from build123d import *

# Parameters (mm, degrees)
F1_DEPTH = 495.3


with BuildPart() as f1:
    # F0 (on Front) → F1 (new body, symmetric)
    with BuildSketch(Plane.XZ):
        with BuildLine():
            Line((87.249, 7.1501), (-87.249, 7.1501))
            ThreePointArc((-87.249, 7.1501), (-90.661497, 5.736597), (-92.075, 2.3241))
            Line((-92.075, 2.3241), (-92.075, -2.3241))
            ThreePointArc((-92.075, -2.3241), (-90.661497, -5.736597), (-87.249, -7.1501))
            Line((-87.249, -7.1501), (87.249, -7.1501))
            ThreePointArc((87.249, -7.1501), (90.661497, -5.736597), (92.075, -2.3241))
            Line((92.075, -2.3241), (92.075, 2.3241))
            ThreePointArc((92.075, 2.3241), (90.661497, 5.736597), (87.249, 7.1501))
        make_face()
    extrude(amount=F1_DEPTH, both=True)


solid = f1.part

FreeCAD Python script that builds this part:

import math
import FreeCAD as App
import Part
import Sketcher

V = App.Vector
Q = App.Units.Quantity

doc = App.newDocument("Part")
body = doc.addObject("PartDesign::Body", "Body")

# Sketch on XZ plane
sketch1 = body.newObject("Sketcher::SketchObject", "Sketch")
sketch1.AttachmentSupport = (doc.getObject("XZ_Plane"), [""])
sketch1.MapMode = "FlatFace"
sketch1.addGeometry([
    Part.LineSegment(V(87.2, 7.2, 0), V(-87.2, 7.2, 0)),  # 0
    Part.ArcOfCircle(Part.Circle(V(-87.2, 2.3, 0), V(0, 0, 1), 4.8), math.radians(90), math.radians(180)),  # 1
    Part.LineSegment(V(-92.1, 2.3, 0), V(-92.1, -2.3, 0)),  # 2
    Part.ArcOfCircle(Part.Circle(V(-87.2, -2.3, 0), V(0, 0, 1), 4.8), math.radians(-180), math.radians(-90)),  # 3
    Part.LineSegment(V(-87.2, -7.2, 0), V(87.2, -7.2, 0)),  # 4
    Part.ArcOfCircle(Part.Circle(V(87.2, -2.3, 0), V(0, 0, 1), 4.8), math.radians(-90), math.radians(0)),  # 5
    Part.LineSegment(V(92.1, -2.3, 0), V(92.1, 2.3, 0)),  # 6
    Part.ArcOfCircle(Part.Circle(V(87.2, 2.3, 0), V(0, 0, 1), 4.8), math.radians(0), math.radians(90)),  # 7
], False)
sketch1.addConstraint([
    Sketcher.Constraint("Tangent", 0, 2, 1, 1),
    Sketcher.Constraint("Tangent", 1, 2, 2, 1),
    Sketcher.Constraint("Tangent", 2, 2, 3, 1),
    Sketcher.Constraint("Tangent", 3, 2, 4, 1),
    Sketcher.Constraint("Tangent", 4, 2, 5, 1),
    Sketcher.Constraint("Tangent", 5, 2, 6, 1),
    Sketcher.Constraint("Tangent", 6, 2, 7, 1),
    Sketcher.Constraint("Tangent", 7, 2, 0, 1),
    Sketcher.Constraint("Horizontal", 0),
    Sketcher.Constraint("Vertical", 2),
    Sketcher.Constraint("Horizontal", 4),
    Sketcher.Constraint("Vertical", 6),
    Sketcher.Constraint("Equal", 1, 3),
    Sketcher.Constraint("Equal", 3, 5),
    Sketcher.Constraint("Equal", 5, 7),
    Sketcher.Constraint("Symmetric", 1, 3, 5, 3, -1, 1),
    Sketcher.Constraint("Radius", 1, Q("0.19 in")),
    Sketcher.Constraint("DistanceX", 0, 2, 0, 1, Q("6.87 in")),
    Sketcher.Constraint("DistanceY", 2, 2, 2, 1, Q("0.183 in")),
])
pad1 = body.newObject("PartDesign::Pad", "Pad")
pad1.Profile = sketch1
pad1.Length = Q("39 in")
pad1.Midplane = True

doc.recompute()
